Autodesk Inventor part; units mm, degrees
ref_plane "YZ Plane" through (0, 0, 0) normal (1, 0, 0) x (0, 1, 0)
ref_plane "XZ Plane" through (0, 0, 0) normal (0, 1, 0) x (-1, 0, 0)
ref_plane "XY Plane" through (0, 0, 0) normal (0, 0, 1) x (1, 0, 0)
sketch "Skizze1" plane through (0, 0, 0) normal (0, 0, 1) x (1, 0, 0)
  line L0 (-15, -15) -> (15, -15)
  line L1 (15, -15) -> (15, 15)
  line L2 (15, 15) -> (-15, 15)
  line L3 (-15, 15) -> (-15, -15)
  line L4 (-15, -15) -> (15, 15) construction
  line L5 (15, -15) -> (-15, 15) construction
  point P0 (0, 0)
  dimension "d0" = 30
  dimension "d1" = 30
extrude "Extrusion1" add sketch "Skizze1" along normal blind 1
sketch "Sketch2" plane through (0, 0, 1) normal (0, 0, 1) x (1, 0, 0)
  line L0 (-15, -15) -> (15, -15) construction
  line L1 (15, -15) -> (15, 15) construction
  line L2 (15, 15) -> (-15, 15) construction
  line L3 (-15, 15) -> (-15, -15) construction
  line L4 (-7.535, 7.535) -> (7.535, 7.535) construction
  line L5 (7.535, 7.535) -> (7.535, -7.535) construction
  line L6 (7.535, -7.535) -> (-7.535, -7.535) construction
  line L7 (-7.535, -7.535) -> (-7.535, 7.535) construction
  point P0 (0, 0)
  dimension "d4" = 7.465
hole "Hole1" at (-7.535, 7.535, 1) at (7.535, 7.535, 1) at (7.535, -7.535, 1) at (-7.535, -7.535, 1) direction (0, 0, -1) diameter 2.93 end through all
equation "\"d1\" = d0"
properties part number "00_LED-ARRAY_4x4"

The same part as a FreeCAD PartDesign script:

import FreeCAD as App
import Part
import Sketcher

V = App.Vector


def add_polygon(sketch, points):
    """Adds a closed chain of lines whose ends are joined by coincident constraints."""
    first, n = sketch.GeometryCount, len(points)
    for a, b in zip(points, points[1:] + points[:1]):
        sketch.addGeometry(Part.LineSegment(App.Vector(*a, 0), App.Vector(*b, 0)), False)
    for i in range(n):
        sketch.addConstraint(Sketcher.Constraint("Coincident", first + i, 2, first + (i + 1) % n, 1))

doc = App.newDocument("Part")
body = doc.addObject("PartDesign::Body", "Body")

# Sketch on XY plane
sketch1 = body.newObject("Sketcher::SketchObject", "Sketch")
sketch1.AttachmentSupport = (doc.getObject("XY_Plane"), [""])
sketch1.MapMode = "FlatFace"
add_polygon(sketch1, [(-15, 15), (-15, -15), (15, -15), (15, 15)])  # lines 0-3
sketch1.addConstraint([
    Sketcher.Constraint("Vertical", 0),
    Sketcher.Constraint("Horizontal", 1),
    Sketcher.Constraint("Vertical", 2),
    Sketcher.Constraint("Horizontal", 3),
    Sketcher.Constraint("Symmetric", 0, 2, 2, 2, -1, 1),
    Sketcher.Constraint("Equal", 3, 0),
    Sketcher.Constraint("DistanceX", 1, 1, 1, 2, 30.0),
])
pad1 = body.newObject("PartDesign::Pad", "Pad")
pad1.Profile = sketch1
pad1.Length = 1

# Sketch on XY plane
sketch2 = body.newObject("Sketcher::SketchObject", "Sketch001")
sketch2.AttachmentSupport = (doc.getObject("XY_Plane"), [""])
sketch2.MapMode = "FlatFace"
sketch2.AttachmentOffset = App.Placement(V(0, 0, 1), App.Rotation())
sketch2.addGeometry([
    Part.Circle(V(-7.5, 7.5, 0), V(0, 0, 1), 1.5),
    Part.Circle(V(7.5, 7.5, 0), V(0, 0, 1), 1.5),
    Part.Circle(V(7.5, -7.5, 0), V(0, 0, 1), 1.5),
    Part.Circle(V(-7.5, -7.5, 0), V(0, 0, 1), 1.5),
], False)
sketch2.addConstraint([
    Sketcher.Constraint("Equal", 0, 1),
    Sketcher.Constraint("Equal", 1, 2),
    Sketcher.Constraint("Equal", 2, 3),
    Sketcher.Constraint("Symmetric", 0, 3, 2, 3, -1, 1),
    Sketcher.Constraint("Symmetric", 1, 3, 3, 3, -1, 1),
    Sketcher.Constraint("Symmetric", 0, 3, 1, 3, -2),
    Sketcher.Constraint("Diameter", 0, 2.93),
    Sketcher.Constraint("DistanceX", 0, 3, 1, 3, 15.07),
    Sketcher.Constraint("DistanceY", 2, 3, 1, 3, 15.07),
])
doc.recompute()
hole = body.newObject("PartDesign::Hole", "Hole")
hole.Profile = sketch2
hole.ThreadType = "None"
hole.Diameter = 2.93
hole.DepthType = "ThroughAll"

doc.recompute()
